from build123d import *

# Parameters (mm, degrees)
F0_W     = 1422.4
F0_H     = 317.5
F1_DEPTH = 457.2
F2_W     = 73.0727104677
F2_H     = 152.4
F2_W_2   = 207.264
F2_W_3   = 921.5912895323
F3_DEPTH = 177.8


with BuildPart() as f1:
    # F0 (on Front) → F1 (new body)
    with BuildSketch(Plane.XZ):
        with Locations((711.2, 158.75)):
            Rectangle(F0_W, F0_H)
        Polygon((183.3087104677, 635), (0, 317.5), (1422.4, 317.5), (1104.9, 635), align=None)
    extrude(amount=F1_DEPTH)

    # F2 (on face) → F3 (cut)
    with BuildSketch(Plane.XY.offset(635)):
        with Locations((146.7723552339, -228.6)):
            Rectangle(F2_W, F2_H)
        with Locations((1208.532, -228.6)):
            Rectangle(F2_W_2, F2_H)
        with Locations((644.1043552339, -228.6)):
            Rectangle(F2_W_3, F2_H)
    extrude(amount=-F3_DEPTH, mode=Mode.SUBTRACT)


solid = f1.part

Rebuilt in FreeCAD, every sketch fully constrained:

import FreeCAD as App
import Part
import Sketcher
Q = App.Units.Quantity

doc = App.newDocument("Part")
body = doc.addObject("PartDesign::Body", "Body")

# Sketch on XZ plane
sketch1 = doc.addObject("Sketcher::SketchObject", "Sketch")
body.addObject(sketch1)
sketch1.AttachmentSupport = (doc.XZ_Plane, [""])
sketch1.MapMode = "FlatFace"
sketch1.addGeometry([
    Part.LineSegment(App.Vector(0, 318, 0), App.Vector(0, 0, 0)),  # 0
    Part.LineSegment(App.Vector(0, 0, 0), App.Vector(1422, 0, 0)),  # 1
    Part.LineSegment(App.Vector(1422, 0, 0), App.Vector(1422, 318, 0)),  # 2
    Part.LineSegment(App.Vector(1422, 318, 0), App.Vector(1105, 635, 0)),  # 3
    Part.LineSegment(App.Vector(1105, 635, 0), App.Vector(183, 635, 0)),  # 4
    Part.LineSegment(App.Vector(183, 635, 0), App.Vector(0, 318, 0)),  # 5
], False)
sketch1.addConstraint([
    Sketcher.Constraint("Coincident", 0, 2, 1, 1),
    Sketcher.Constraint("Coincident", 1, 2, 2, 1),
    Sketcher.Constraint("Coincident", 2, 2, 3, 1),
    Sketcher.Constraint("Coincident", 3, 2, 4, 1),
    Sketcher.Constraint("Coincident", 4, 2, 5, 1),
    Sketcher.Constraint("Coincident", 5, 2, 0, 1),
    Sketcher.Constraint("Vertical", 0),
    Sketcher.Constraint("Horizontal", 1),
    Sketcher.Constraint("Vertical", 2),
    Sketcher.Constraint("Horizontal", 4),
    Sketcher.Constraint("Coincident", 0, 2, -1, 1),
    Sketcher.Constraint("Horizontal", 2, 2, 5, 2),
    Sketcher.Constraint("DistanceX", 1, 1, 1, 2, Q("56 in")),
    Sketcher.Constraint("DistanceY", 0, 2, 0, 1, Q("12.5 in")),
    Sketcher.Constraint("DistanceY", -1, 1, 3, 2, Q("25 in")),
    Sketcher.Constraint("Angle", 3, Q("135 deg")),
    Sketcher.Constraint("Angle", 5, Q("-120 deg")),
])
pad1 = doc.addObject("PartDesign::Pad", "Pad")
body.addObject(pad1)
pad1.Profile = sketch1
pad1.Length = Q("18 in")

# Sketch on XY plane
sketch2 = doc.addObject("Sketcher::SketchObject", "Sketch001")
body.addObject(sketch2)
sketch2.AttachmentSupport = (doc.XY_Plane, [""])
sketch2.MapMode = "FlatFace"
sketch2.AttachmentOffset = App.Placement(App.Vector(0, 0, 25 * 25.4), App.Rotation())
sketch2.addGeometry([
    Part.LineSegment(App.Vector(110, -152, 0), App.Vector(110, -305, 0)),
    Part.LineSegment(App.Vector(110, -305, 0), App.Vector(1312, -305, 0)),
    Part.LineSegment(App.Vector(1312, -305, 0), App.Vector(1312, -152, 0)),
    Part.LineSegment(App.Vector(1312, -152, 0), App.Vector(110, -152, 0)),
], False)
sketch2.addConstraint([
    Sketcher.Constraint("Coincident", 0, 2, 1, 1),
    Sketcher.Constraint("Coincident", 1, 2, 2, 1),
    Sketcher.Constraint("Coincident", 2, 2, 3, 1),
    Sketcher.Constraint("Coincident", 3, 2, 0, 1),
    Sketcher.Constraint("Vertical", 0),
    Sketcher.Constraint("Horizontal", 1),
    Sketcher.Constraint("Vertical", 2),
    Sketcher.Constraint("Horizontal", 3),
    Sketcher.Constraint("DistanceY", 0, 2, 0, 1, Q("6 in")),
    Sketcher.Constraint("DistanceY", 0, 2, -1, 1, Q("12 in")),
    Sketcher.Constraint("DistanceX", 1, 1, 1, 2, Q("47.32 in")),
    Sketcher.Constraint("DistanceX", -1, 1, 0, 2, Q("4.34 in")),
])
pocket1 = doc.addObject("PartDesign::Pocket", "Pocket")
body.addObject(pocket1)
pocket1.Profile = sketch2
pocket1.Length = Q("7 in")

doc.recompute()
